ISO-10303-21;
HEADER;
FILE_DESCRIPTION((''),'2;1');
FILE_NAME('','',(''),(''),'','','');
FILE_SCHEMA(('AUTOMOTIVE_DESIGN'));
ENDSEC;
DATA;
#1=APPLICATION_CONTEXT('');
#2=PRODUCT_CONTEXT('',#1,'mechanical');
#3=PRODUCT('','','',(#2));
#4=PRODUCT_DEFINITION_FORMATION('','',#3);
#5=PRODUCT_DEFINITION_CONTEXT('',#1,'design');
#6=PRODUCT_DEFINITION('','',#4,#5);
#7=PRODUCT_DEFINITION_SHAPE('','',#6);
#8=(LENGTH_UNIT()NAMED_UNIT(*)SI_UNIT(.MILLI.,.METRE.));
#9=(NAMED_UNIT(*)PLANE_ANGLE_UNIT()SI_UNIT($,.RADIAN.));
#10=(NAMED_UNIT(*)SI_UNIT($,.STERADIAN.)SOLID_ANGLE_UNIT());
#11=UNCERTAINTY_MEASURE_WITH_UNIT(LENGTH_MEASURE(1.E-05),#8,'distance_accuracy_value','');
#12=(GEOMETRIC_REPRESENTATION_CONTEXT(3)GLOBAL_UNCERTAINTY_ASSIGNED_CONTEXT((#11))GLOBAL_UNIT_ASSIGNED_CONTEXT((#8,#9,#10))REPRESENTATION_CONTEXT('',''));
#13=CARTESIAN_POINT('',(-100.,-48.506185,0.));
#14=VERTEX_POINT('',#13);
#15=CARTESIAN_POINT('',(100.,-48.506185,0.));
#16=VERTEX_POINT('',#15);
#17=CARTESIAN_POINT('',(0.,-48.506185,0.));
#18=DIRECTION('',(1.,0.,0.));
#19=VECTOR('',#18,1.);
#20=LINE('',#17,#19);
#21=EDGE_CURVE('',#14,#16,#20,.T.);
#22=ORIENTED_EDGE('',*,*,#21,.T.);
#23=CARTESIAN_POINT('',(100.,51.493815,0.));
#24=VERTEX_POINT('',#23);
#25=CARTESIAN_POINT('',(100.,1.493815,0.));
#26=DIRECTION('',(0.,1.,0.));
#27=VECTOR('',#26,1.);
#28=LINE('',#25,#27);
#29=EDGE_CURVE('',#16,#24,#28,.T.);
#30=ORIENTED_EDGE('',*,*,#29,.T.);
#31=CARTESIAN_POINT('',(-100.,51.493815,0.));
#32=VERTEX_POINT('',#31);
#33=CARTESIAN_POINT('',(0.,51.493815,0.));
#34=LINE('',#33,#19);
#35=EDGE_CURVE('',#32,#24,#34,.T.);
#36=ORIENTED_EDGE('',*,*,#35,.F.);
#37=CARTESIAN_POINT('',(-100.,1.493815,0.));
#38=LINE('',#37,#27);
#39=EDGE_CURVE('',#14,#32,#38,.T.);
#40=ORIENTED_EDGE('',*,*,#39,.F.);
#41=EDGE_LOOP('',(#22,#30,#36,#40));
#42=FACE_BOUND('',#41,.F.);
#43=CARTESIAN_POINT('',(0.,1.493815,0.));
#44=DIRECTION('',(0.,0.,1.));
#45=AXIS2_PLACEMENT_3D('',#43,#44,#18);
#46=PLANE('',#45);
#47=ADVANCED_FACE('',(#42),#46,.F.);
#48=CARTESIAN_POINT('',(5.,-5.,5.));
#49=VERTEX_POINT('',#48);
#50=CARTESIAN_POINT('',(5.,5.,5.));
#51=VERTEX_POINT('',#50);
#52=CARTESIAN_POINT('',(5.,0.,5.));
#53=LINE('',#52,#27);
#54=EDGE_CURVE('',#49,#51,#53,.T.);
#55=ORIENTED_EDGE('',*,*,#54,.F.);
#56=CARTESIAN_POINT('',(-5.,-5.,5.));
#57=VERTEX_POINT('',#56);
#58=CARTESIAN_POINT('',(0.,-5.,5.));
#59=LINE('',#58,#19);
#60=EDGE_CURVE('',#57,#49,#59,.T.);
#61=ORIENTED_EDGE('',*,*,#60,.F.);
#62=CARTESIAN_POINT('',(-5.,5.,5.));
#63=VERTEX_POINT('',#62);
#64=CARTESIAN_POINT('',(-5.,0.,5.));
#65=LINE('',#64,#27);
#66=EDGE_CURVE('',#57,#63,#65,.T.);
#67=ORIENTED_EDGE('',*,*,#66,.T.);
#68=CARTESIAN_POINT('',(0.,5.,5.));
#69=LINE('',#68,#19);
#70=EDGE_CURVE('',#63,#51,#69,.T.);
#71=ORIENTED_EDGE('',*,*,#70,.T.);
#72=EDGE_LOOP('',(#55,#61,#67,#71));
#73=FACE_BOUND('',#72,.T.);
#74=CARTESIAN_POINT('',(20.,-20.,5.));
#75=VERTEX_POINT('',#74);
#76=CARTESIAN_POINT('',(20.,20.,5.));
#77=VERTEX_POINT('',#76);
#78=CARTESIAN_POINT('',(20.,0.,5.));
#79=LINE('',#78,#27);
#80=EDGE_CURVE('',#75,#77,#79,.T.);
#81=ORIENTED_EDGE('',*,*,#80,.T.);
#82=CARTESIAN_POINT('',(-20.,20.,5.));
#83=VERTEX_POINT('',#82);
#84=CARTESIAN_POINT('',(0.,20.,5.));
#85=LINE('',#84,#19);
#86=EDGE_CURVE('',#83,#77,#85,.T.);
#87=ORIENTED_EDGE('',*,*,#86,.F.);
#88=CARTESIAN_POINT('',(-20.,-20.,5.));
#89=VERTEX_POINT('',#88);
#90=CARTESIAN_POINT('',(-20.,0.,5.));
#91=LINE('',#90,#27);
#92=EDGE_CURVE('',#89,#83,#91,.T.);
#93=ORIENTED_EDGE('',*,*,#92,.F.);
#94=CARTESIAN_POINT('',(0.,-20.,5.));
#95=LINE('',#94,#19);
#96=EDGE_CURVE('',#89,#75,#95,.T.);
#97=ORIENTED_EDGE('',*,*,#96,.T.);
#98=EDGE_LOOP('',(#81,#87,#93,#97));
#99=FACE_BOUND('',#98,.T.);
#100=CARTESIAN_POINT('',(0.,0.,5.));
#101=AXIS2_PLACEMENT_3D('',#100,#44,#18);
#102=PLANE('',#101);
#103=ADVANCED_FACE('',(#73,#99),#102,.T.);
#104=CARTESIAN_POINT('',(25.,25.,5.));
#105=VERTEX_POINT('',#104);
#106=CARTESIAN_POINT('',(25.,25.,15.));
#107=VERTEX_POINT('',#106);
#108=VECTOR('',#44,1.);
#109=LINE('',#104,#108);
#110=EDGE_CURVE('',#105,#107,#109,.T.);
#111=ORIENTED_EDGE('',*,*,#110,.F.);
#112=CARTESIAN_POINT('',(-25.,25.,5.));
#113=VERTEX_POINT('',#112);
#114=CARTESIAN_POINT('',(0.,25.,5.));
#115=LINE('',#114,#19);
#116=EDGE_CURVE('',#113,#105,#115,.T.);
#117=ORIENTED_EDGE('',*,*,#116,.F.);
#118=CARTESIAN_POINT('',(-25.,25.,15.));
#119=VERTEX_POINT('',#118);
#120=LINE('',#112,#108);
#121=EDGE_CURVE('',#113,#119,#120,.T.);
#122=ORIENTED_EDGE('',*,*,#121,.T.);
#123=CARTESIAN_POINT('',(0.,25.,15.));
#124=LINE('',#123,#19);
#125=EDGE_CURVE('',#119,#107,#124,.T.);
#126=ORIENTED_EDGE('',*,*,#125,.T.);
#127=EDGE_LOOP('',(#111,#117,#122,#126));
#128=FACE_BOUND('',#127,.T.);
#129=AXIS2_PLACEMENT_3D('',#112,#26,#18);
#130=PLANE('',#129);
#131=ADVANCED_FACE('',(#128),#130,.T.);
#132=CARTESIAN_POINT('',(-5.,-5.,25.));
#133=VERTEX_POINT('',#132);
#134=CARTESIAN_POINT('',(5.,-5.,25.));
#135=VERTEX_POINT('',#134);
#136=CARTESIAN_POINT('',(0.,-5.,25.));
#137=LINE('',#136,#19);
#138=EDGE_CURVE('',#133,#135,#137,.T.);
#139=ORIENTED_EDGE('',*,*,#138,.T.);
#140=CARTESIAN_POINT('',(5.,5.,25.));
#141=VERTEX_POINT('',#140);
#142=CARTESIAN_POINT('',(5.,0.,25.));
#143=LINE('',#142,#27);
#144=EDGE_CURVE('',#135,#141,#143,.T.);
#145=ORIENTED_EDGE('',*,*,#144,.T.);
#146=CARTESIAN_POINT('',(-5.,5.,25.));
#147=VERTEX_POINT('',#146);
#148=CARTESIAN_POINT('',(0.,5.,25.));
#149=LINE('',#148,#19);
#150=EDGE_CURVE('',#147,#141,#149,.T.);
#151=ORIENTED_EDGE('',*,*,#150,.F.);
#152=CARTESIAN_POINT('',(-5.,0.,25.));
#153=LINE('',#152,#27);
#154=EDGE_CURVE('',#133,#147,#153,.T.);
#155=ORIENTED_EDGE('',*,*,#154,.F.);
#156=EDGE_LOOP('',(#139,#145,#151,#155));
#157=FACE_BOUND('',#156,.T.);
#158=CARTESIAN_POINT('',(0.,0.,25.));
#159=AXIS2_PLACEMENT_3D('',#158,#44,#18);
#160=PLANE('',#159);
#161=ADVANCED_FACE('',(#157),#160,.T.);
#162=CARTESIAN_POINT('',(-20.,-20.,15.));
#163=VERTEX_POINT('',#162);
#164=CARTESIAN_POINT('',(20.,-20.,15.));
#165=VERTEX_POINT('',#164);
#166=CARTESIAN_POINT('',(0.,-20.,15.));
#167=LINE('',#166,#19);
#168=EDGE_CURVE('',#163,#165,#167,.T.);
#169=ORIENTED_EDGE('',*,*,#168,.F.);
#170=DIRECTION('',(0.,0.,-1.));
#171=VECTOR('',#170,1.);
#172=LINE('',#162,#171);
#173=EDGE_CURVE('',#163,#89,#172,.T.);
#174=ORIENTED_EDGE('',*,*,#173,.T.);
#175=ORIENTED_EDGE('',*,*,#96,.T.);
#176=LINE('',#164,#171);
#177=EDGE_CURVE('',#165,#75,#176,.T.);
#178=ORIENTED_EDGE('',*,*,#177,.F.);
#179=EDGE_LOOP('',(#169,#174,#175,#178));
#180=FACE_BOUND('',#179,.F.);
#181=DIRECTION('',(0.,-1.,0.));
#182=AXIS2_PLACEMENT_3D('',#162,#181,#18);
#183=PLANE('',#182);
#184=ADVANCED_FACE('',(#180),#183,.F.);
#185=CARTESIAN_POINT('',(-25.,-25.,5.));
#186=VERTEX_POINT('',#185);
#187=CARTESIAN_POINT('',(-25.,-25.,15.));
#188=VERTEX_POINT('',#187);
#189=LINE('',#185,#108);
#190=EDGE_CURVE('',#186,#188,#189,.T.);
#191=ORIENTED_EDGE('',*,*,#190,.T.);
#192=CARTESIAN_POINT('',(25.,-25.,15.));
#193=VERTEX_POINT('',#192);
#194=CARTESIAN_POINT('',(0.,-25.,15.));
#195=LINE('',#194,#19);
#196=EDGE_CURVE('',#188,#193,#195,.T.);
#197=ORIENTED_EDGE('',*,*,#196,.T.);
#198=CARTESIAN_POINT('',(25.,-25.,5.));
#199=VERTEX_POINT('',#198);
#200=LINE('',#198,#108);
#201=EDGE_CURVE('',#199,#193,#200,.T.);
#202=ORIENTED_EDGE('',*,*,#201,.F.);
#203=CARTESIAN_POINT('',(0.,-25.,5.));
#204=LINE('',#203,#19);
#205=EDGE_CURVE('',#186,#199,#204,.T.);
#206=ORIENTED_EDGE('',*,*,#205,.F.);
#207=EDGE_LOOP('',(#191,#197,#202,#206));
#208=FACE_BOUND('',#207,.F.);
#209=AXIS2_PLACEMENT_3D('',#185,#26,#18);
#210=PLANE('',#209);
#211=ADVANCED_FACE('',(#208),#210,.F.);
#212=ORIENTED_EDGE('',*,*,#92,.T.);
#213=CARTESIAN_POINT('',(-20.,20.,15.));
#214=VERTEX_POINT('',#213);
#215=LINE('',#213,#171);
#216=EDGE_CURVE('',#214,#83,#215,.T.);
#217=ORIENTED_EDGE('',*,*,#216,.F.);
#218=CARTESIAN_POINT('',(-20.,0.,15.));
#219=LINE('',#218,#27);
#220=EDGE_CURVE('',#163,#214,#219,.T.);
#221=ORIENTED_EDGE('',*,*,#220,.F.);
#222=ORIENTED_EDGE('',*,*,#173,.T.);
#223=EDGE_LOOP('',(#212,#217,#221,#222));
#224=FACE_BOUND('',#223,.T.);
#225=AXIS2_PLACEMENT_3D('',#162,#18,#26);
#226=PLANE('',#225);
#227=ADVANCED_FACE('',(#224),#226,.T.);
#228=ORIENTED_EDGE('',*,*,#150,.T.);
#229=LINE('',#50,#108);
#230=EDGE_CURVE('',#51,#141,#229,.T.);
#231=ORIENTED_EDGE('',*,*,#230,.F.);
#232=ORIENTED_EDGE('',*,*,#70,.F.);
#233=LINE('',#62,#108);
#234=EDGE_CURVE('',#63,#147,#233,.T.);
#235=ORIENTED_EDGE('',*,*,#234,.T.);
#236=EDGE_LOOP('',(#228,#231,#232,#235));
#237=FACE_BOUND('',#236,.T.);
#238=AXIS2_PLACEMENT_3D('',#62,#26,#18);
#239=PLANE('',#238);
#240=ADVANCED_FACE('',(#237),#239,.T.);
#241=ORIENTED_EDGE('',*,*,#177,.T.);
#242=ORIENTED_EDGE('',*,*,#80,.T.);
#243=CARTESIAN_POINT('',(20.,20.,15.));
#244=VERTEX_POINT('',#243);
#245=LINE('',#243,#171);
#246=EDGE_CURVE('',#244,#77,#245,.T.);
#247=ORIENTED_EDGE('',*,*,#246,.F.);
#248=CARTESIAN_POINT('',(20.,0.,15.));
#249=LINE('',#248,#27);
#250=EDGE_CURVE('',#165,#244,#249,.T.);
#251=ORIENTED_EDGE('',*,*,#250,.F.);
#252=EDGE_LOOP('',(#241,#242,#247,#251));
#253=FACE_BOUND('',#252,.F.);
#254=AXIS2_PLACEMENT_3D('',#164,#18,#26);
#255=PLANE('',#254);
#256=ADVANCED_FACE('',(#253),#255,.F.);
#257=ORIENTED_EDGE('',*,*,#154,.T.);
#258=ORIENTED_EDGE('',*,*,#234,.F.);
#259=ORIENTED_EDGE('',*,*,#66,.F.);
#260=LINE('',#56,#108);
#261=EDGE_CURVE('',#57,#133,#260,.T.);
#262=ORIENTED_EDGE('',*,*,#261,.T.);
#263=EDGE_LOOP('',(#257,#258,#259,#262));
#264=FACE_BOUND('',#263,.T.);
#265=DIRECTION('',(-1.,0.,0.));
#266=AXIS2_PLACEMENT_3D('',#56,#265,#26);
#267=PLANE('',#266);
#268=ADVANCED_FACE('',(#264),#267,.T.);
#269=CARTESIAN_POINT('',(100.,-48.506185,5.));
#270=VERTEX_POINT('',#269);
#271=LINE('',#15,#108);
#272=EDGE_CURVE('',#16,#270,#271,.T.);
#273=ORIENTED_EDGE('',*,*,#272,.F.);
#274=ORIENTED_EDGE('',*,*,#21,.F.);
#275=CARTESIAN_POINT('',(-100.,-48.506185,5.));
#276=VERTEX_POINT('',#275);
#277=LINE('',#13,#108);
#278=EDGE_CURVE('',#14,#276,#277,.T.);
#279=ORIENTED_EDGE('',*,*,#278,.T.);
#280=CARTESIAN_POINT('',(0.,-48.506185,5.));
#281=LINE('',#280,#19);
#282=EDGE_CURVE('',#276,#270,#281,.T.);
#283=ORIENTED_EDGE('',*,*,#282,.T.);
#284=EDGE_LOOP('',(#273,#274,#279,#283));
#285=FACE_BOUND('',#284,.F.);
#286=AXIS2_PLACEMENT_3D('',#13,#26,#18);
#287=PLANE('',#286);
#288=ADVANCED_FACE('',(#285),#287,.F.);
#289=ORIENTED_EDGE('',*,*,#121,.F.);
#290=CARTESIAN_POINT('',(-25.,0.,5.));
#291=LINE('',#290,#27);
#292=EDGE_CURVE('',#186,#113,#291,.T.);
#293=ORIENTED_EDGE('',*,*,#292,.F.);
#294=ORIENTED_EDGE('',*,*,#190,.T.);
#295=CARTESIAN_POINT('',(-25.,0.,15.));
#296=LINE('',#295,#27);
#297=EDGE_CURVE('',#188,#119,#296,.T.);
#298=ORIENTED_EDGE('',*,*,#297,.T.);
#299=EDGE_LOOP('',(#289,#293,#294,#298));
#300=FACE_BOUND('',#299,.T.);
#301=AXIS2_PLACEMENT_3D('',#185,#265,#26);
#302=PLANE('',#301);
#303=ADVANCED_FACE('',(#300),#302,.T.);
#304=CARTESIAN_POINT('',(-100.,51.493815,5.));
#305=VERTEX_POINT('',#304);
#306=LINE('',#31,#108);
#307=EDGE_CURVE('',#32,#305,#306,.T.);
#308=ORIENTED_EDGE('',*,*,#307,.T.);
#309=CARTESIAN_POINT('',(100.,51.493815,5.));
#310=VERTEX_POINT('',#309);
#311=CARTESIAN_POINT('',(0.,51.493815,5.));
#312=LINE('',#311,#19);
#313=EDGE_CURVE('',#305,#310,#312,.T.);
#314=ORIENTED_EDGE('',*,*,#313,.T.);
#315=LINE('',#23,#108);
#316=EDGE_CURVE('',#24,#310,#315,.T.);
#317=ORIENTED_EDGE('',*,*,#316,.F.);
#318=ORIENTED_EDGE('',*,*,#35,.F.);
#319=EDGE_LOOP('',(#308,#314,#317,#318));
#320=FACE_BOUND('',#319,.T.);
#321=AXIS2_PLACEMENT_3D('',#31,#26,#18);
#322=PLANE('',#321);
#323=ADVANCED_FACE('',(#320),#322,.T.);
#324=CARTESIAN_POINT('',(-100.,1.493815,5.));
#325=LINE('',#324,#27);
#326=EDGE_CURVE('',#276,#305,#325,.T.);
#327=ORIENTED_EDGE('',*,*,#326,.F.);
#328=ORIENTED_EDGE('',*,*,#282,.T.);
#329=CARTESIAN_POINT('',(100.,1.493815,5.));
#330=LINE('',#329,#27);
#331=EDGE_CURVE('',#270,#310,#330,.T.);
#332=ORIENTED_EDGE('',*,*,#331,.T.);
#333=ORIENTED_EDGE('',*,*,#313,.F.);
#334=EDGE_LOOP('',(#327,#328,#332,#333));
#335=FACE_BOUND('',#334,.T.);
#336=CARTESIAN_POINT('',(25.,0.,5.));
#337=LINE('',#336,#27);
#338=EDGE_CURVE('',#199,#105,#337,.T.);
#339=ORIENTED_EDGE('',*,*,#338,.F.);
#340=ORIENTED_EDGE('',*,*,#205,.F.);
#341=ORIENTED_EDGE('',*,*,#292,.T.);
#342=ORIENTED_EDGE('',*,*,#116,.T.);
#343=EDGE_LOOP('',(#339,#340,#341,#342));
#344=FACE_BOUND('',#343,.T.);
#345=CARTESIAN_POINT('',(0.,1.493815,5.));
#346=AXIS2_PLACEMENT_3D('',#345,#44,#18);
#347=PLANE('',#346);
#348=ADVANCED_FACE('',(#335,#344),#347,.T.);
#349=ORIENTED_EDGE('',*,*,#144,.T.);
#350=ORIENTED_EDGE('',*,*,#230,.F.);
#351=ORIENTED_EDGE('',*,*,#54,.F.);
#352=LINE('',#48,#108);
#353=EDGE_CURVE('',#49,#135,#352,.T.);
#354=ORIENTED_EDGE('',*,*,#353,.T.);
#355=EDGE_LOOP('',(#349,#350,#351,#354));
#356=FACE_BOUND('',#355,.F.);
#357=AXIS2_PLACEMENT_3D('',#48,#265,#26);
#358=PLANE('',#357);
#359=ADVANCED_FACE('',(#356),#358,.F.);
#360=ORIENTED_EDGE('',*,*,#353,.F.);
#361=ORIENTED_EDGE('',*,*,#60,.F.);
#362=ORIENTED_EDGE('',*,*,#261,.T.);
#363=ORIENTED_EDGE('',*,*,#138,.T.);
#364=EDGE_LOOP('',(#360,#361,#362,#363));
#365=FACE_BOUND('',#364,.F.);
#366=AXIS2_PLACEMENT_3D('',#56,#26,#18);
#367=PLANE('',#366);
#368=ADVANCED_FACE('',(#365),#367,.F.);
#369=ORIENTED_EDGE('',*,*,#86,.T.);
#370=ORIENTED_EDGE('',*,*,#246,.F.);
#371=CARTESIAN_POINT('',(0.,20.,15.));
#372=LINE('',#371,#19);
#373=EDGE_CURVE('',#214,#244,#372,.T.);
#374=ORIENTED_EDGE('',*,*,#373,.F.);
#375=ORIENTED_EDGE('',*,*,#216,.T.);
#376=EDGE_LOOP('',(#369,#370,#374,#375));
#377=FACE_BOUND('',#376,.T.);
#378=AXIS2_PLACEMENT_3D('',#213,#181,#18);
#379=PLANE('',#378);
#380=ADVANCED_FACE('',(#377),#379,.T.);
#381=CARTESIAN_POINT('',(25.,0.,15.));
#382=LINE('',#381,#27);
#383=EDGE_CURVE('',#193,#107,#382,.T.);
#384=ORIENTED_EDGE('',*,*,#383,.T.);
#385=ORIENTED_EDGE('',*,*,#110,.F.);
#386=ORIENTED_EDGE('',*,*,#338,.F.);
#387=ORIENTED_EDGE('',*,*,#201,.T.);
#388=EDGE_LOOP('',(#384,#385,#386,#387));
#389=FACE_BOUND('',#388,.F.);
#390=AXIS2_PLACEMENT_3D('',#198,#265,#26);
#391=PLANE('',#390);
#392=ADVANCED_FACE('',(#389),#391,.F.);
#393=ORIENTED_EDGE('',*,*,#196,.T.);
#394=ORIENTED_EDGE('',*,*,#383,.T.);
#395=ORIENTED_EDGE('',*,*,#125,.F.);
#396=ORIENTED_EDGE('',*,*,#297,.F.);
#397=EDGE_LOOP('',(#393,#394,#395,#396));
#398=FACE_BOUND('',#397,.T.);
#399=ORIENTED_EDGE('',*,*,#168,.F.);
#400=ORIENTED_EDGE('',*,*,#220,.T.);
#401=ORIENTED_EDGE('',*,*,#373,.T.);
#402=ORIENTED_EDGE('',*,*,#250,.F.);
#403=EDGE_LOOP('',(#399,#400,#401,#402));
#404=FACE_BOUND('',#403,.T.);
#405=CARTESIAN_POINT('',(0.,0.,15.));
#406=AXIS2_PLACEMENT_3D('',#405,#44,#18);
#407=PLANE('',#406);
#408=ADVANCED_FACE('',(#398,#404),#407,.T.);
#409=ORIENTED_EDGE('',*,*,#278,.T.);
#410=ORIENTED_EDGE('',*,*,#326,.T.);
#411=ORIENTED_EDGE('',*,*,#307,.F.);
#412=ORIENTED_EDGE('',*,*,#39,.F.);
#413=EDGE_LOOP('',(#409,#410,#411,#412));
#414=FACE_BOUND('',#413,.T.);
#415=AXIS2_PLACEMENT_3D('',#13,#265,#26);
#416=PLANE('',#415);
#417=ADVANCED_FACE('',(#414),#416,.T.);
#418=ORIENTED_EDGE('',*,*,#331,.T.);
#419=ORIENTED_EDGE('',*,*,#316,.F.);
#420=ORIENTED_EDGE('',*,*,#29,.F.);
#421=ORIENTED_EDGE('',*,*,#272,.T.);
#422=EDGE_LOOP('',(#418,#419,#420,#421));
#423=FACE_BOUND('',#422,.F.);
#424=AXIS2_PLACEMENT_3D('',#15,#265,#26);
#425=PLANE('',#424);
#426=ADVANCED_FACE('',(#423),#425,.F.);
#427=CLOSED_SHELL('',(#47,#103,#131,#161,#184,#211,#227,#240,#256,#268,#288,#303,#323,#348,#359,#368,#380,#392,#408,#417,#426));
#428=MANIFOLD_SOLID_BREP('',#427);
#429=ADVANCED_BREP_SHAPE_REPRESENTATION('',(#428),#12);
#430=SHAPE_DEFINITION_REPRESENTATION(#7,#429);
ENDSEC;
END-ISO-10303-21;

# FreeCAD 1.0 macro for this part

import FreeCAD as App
import Part
import Sketcher


def add_polygon(sketch, points):
    """Adds a closed chain of lines whose ends are joined by coincident constraints."""
    first, n = sketch.GeometryCount, len(points)
    for a, b in zip(points, points[1:] + points[:1]):
        sketch.addGeometry(Part.LineSegment(App.Vector(*a, 0), App.Vector(*b, 0)), False)
    for i in range(n):
        sketch.addConstraint(Sketcher.Constraint("Coincident", first + i, 2, first + (i + 1) % n, 1))

doc = App.newDocument("Part")
body = doc.addObject("PartDesign::Body", "Body")

# Sketch on XY plane
sketch1 = body.newObject("Sketcher::SketchObject", "Sketch")
sketch1.AttachmentSupport = (doc.getObject("XY_Plane"), [""])
sketch1.MapMode = "FlatFace"
add_polygon(sketch1, [(-100, 51.493815), (-100, -48.506185), (100, -48.506185), (100, 51.493815)])  # lines 0-3
sketch1.addConstraint(Sketcher.Constraint("Vertical", 0))
sketch1.addConstraint(Sketcher.Constraint("Horizontal", 1))
sketch1.addConstraint(Sketcher.Constraint("Vertical", 2))
sketch1.addConstraint(Sketcher.Constraint("Horizontal", 3))
sketch1.addConstraint(Sketcher.Constraint("DistanceX", 1, 1, 1, 2, 200.0))
sketch1.addConstraint(Sketcher.Constraint("DistanceY", 0, 2, 0, 1, 100.0))
sketch1.addConstraint(Sketcher.Constraint("DistanceX", 0, 2, -1, 1, 100.0))
sketch1.addConstraint(Sketcher.Constraint("DistanceY", 0, 2, -1, 1, 48.506185))
pad1 = body.newObject("PartDesign::Pad", "Pad")
pad1.Profile = sketch1
pad1.Length = 5

# Sketch on XY plane
sketch2 = body.newObject("Sketcher::SketchObject", "Sketch001")
sketch2.AttachmentSupport = (doc.getObject("XY_Plane"), [""])
sketch2.MapMode = "FlatFace"
sketch2.AttachmentOffset = App.Placement(App.Vector(0, 0, 5), App.Rotation())
add_polygon(sketch2, [(-25, 25), (-25, -25), (25, -25), (25, 25)])  # lines 0-3
sketch2.addConstraint(Sketcher.Constraint("Vertical", 0))
sketch2.addConstraint(Sketcher.Constraint("Horizontal", 1))
sketch2.addConstraint(Sketcher.Constraint("Vertical", 2))
sketch2.addConstraint(Sketcher.Constraint("Horizontal", 3))
sketch2.addConstraint(Sketcher.Constraint("Symmetric", 0, 2, 2, 2, -1, 1))
sketch2.addConstraint(Sketcher.Constraint("Equal", 3, 0))
sketch2.addConstraint(Sketcher.Constraint("DistanceX", 1, 1, 1, 2, 50.0))
pad2 = body.newObject("PartDesign::Pad", "Pad001")
pad2.Profile = sketch2
pad2.Length = 10

# Sketch on XY plane
sketch3 = body.newObject("Sketcher::SketchObject", "Sketch002")
sketch3.AttachmentSupport = (doc.getObject("XY_Plane"), [""])
sketch3.MapMode = "FlatFace"
sketch3.AttachmentOffset = App.Placement(App.Vector(0, 0, 15), App.Rotation())
add_polygon(sketch3, [(-20, 20), (-20, -20), (20, -20), (20, 20)])  # lines 0-3
sketch3.addConstraint(Sketcher.Constraint("Vertical", 0))
sketch3.addConstraint(Sketcher.Constraint("Horizontal", 1))
sketch3.addConstraint(Sketcher.Constraint("Vertical", 2))
sketch3.addConstraint(Sketcher.Constraint("Horizontal", 3))
sketch3.addConstraint(Sketcher.Constraint("Symmetric", 0, 2, 2, 2, -1, 1))
sketch3.addConstraint(Sketcher.Constraint("Equal", 3, 0))
sketch3.addConstraint(Sketcher.Constraint("DistanceX", 1, 1, 1, 2, 40.0))
pocket1 = body.newObject("PartDesign::Pocket", "Pocket")
pocket1.Profile = sketch3
pocket1.Length = 10

# Sketch on XY plane
sketch4 = body.newObject("Sketcher::SketchObject", "Sketch003")
sketch4.AttachmentSupport = (doc.getObject("XY_Plane"), [""])
sketch4.MapMode = "FlatFace"
sketch4.AttachmentOffset = App.Placement(App.Vector(0, 0, 5), App.Rotation())
add_polygon(sketch4, [(-5, 5), (-5, -5), (5, -5), (5, 5)])  # lines 0-3
sketch4.addConstraint(Sketcher.Constraint("Vertical", 0))
sketch4.addConstraint(Sketcher.Constraint("Horizontal", 1))
sketch4.addConstraint(Sketcher.Constraint("Vertical", 2))
sketch4.addConstraint(Sketcher.Constraint("Horizontal", 3))
sketch4.addConstraint(Sketcher.Constraint("Symmetric", 0, 2, 2, 2, -1, 1))
sketch4.addConstraint(Sketcher.Constraint("Equal", 3, 0))
sketch4.addConstraint(Sketcher.Constraint("DistanceX", 1, 1, 1, 2, 10.0))
pad3 = body.newObject("PartDesign::Pad", "Pad002")
pad3.Profile = sketch4
pad3.Length = 20

doc.recompute()
